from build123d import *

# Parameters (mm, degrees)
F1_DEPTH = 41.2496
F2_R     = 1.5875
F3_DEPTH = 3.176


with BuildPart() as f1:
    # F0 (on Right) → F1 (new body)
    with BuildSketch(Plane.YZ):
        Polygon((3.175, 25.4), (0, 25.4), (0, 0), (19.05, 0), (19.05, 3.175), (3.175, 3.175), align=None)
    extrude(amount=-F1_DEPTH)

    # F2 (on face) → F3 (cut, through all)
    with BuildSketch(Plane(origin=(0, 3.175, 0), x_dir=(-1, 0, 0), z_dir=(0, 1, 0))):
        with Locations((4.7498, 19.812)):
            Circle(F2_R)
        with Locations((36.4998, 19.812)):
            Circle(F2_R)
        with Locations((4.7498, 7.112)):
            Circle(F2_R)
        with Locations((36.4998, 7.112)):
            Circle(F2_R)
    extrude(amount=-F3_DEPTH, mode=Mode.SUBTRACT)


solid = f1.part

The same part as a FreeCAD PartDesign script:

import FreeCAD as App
import Part
import Sketcher
Q = App.Units.Quantity

doc = App.newDocument("Part")
body = doc.addObject("PartDesign::Body", "Body")

sketch1 = body.newObject("Sketcher::SketchObject", "Sketch")
sketch1.AttachmentSupport = (doc.getObject("YZ_Plane"), [""])
sketch1.MapMode = "FlatFace"
sketch1.addGeometry([
    Part.LineSegment(App.Vector(3.175, 25.4, 0), App.Vector(0, 25.4, 0)),
    Part.LineSegment(App.Vector(0, 25.4, 0), App.Vector(0, 0, 0)),
    Part.LineSegment(App.Vector(0, 0, 0), App.Vector(19.05, 0, 0)),
    Part.LineSegment(App.Vector(19.05, 0, 0), App.Vector(19.05, 3.175, 0)),
    Part.LineSegment(App.Vector(19.05, 3.175, 0), App.Vector(3.175, 3.175, 0)),
    Part.LineSegment(App.Vector(3.175, 3.175, 0), App.Vector(3.175, 25.4, 0)),
], False)
sketch1.addConstraint([
    Sketcher.Constraint("Coincident", 0, 2, 1, 1),
    Sketcher.Constraint("Coincident", 1, 2, 2, 1),
    Sketcher.Constraint("Coincident", 2, 2, 3, 1),
    Sketcher.Constraint("Coincident", 3, 2, 4, 1),
    Sketcher.Constraint("Coincident", 4, 2, 5, 1),
    Sketcher.Constraint("Coincident", 5, 2, 0, 1),
    Sketcher.Constraint("Horizontal", 0),
    Sketcher.Constraint("Vertical", 1),
    Sketcher.Constraint("Horizontal", 2),
    Sketcher.Constraint("Vertical", 3),
    Sketcher.Constraint("Horizontal", 4),
    Sketcher.Constraint("Vertical", 5),
    Sketcher.Constraint("Coincident", 1, 2, -1, 1),
    Sketcher.Constraint("Equal", 0, 3),
    Sketcher.Constraint("DistanceY", 1, 2, 1, 1, Q("1 in")),
    Sketcher.Constraint("DistanceX", 2, 1, 2, 2, Q("0.75 in")),
    Sketcher.Constraint("DistanceX", 0, 2, 0, 1, Q("0.125 in")),
])
pad1 = body.newObject("PartDesign::Pad", "Pad")
pad1.Profile = sketch1
pad1.Length = Q("1.624 in")
pad1.Reversed = True

sketch2 = body.newObject("Sketcher::SketchObject", "Sketch001")
sketch2.AttachmentSupport = (doc.getObject("XZ_Plane"), [""])
sketch2.MapMode = "FlatFace"
sketch2.AttachmentOffset = App.Placement(App.Vector(0, 0, -0.125 * 25.4), App.Rotation())
sketch2.addGeometry([
    Part.Circle(App.Vector(-4.7498, 19.812, 0), App.Vector(0, 0, 1), 1.5875),
    Part.Circle(App.Vector(-36.4998, 19.812, 0), App.Vector(0, 0, 1), 1.5875),
    Part.Circle(App.Vector(-4.7498, 7.112, 0), App.Vector(0, 0, 1), 1.5875),
    Part.Circle(App.Vector(-36.4998, 7.112, 0), App.Vector(0, 0, 1), 1.5875),
], False)
sketch2.addConstraint([
    Sketcher.Constraint("Equal", 0, 1),
    Sketcher.Constraint("Equal", 1, 2),
    Sketcher.Constraint("Equal", 2, 3),
    Sketcher.Constraint("Horizontal", 0, 3, 1, 3),
    Sketcher.Constraint("Horizontal", 2, 3, 3, 3),
    Sketcher.Constraint("Vertical", 0, 3, 2, 3),
    Sketcher.Constraint("Vertical", 1, 3, 3, 3),
    Sketcher.Constraint("Diameter", 0, Q("0.125 in")),
    Sketcher.Constraint("DistanceY", 2, 3, 0, 3, Q("0.5 in")),
    Sketcher.Constraint("DistanceY", -1, 1, 0, 3, Q("0.78 in")),
    Sketcher.Constraint("DistanceX", 1, 3, 0, 3, Q("1.25 in")),
    Sketcher.Constraint("DistanceX", 0, 3, -1, 1, Q("0.187 in")),
])
pocket1 = body.newObject("PartDesign::Pocket", "Pocket")
pocket1.Profile = sketch2
pocket1.Type = "ThroughAll"
pocket1.Reversed = True

doc.recompute()
